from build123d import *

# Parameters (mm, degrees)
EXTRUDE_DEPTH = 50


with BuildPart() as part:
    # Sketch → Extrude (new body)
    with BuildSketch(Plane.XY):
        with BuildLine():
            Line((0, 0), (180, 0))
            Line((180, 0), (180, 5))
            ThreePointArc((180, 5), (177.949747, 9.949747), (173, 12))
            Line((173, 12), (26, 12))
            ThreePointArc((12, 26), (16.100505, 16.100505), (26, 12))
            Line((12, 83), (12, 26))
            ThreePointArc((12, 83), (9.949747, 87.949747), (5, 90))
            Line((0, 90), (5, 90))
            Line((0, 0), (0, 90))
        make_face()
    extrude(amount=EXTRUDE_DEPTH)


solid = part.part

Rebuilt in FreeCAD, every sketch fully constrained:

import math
import FreeCAD as App
import Part
import Sketcher
Q = App.Units.Quantity

doc = App.newDocument("Part")
params = doc.addObject("Spreadsheet::Sheet", "Params")
for row, (alias, value) in enumerate([
    ("sketch1_radius", "7.000002 mm"),
    ("sketch1_radius2", "14 mm"),
    ("sketch1_width", "180 mm"),
    ("sketch1_width2", "147 mm"),
    ("sketch1_height", "57 mm"),
    ("pad1_length", "50 mm"),
], start=1):
    params.set(f"A{row}", alias)
    params.set(f"B{row}", "=" + value)
    params.setAlias(f"B{row}", alias)

body = doc.addObject("PartDesign::Body", "Body")

# Sketch on XY plane
sketch1 = body.newObject("Sketcher::SketchObject", "Sketch")
sketch1.AttachmentSupport = (doc.getObject("XY_Plane"), [""])
sketch1.MapMode = "FlatFace"
sketch1.addGeometry(Part.LineSegment(App.Vector(0, 0, 0), App.Vector(180, 0, 0)), False)
sketch1.addGeometry(Part.LineSegment(App.Vector(180, 0, 0), App.Vector(180, 5, 0)), False)
sketch1.addGeometry(Part.ArcOfCircle(Part.Circle(App.Vector(173, 5, 0), App.Vector(0, 0, 1), 7), math.radians(0), math.radians(90)), False)
sketch1.addGeometry(Part.LineSegment(App.Vector(173, 12, 0), App.Vector(26, 12, 0)), False)
sketch1.addGeometry(Part.ArcOfCircle(Part.Circle(App.Vector(26, 26, 0), App.Vector(0, 0, 1), 14), math.radians(180), math.radians(270)), False)
sketch1.addGeometry(Part.LineSegment(App.Vector(12, 26, 0), App.Vector(12, 83, 0)), False)
sketch1.addGeometry(Part.ArcOfCircle(Part.Circle(App.Vector(5, 83, 0), App.Vector(0, 0, 1), 7), math.radians(0), math.radians(90)), False)
sketch1.addGeometry(Part.LineSegment(App.Vector(5, 90, 0), App.Vector(0, 90, 0)), False)
sketch1.addGeometry(Part.LineSegment(App.Vector(0, 90, 0), App.Vector(0, 0, 0)), False)
sketch1.addConstraint(Sketcher.Constraint("Coincident", 0, 2, 1, 1))
sketch1.addConstraint(Sketcher.Constraint("Tangent", 1, 2, 2, 1))
sketch1.addConstraint(Sketcher.Constraint("Tangent", 2, 2, 3, 1))
sketch1.addConstraint(Sketcher.Constraint("Tangent", 3, 2, 4, 2))
sketch1.addConstraint(Sketcher.Constraint("Tangent", 4, 1, 5, 1))
sketch1.addConstraint(Sketcher.Constraint("Tangent", 5, 2, 6, 1))
sketch1.addConstraint(Sketcher.Constraint("Tangent", 6, 2, 7, 1))
sketch1.addConstraint(Sketcher.Constraint("Coincident", 7, 2, 8, 1))
sketch1.addConstraint(Sketcher.Constraint("Coincident", 8, 2, 0, 1))
sketch1.addConstraint(Sketcher.Constraint("Horizontal", 0))
sketch1.addConstraint(Sketcher.Constraint("Vertical", 1))
sketch1.addConstraint(Sketcher.Constraint("Horizontal", 3))
sketch1.addConstraint(Sketcher.Constraint("Vertical", 5))
sketch1.addConstraint(Sketcher.Constraint("Horizontal", 7))
sketch1.addConstraint(Sketcher.Constraint("Vertical", 8))
sketch1.addConstraint(Sketcher.Constraint("Coincident", 8, 2, -1, 1))
sketch1.addConstraint(Sketcher.Constraint("Equal", 2, 6))
sketch1.addConstraint(Sketcher.Constraint("Equal", 7, 1))
sketch1.addConstraint(Sketcher.Constraint("Radius", 2, Q("7.000002 mm")))
sketch1.addConstraint(Sketcher.Constraint("Radius", 4, Q("14 mm")))
sketch1.addConstraint(Sketcher.Constraint("DistanceX", 0, 1, 0, 2, Q("180 mm")))
sketch1.addConstraint(Sketcher.Constraint("DistanceX", 3, 2, 3, 1, Q("147 mm")))
sketch1.addConstraint(Sketcher.Constraint("DistanceY", 5, 1, 5, 2, Q("57 mm")))
sketch1.setExpression("Constraints[18]", "Params.sketch1_radius")
sketch1.setExpression("Constraints[19]", "Params.sketch1_radius2")
sketch1.setExpression("Constraints[20]", "Params.sketch1_width")
sketch1.setExpression("Constraints[21]", "Params.sketch1_width2")
sketch1.setExpression("Constraints[22]", "Params.sketch1_height")
pad1 = body.newObject("PartDesign::Pad", "Pad")
pad1.Profile = sketch1
pad1.setExpression("Length", "Params.pad1_length")

doc.recompute()
